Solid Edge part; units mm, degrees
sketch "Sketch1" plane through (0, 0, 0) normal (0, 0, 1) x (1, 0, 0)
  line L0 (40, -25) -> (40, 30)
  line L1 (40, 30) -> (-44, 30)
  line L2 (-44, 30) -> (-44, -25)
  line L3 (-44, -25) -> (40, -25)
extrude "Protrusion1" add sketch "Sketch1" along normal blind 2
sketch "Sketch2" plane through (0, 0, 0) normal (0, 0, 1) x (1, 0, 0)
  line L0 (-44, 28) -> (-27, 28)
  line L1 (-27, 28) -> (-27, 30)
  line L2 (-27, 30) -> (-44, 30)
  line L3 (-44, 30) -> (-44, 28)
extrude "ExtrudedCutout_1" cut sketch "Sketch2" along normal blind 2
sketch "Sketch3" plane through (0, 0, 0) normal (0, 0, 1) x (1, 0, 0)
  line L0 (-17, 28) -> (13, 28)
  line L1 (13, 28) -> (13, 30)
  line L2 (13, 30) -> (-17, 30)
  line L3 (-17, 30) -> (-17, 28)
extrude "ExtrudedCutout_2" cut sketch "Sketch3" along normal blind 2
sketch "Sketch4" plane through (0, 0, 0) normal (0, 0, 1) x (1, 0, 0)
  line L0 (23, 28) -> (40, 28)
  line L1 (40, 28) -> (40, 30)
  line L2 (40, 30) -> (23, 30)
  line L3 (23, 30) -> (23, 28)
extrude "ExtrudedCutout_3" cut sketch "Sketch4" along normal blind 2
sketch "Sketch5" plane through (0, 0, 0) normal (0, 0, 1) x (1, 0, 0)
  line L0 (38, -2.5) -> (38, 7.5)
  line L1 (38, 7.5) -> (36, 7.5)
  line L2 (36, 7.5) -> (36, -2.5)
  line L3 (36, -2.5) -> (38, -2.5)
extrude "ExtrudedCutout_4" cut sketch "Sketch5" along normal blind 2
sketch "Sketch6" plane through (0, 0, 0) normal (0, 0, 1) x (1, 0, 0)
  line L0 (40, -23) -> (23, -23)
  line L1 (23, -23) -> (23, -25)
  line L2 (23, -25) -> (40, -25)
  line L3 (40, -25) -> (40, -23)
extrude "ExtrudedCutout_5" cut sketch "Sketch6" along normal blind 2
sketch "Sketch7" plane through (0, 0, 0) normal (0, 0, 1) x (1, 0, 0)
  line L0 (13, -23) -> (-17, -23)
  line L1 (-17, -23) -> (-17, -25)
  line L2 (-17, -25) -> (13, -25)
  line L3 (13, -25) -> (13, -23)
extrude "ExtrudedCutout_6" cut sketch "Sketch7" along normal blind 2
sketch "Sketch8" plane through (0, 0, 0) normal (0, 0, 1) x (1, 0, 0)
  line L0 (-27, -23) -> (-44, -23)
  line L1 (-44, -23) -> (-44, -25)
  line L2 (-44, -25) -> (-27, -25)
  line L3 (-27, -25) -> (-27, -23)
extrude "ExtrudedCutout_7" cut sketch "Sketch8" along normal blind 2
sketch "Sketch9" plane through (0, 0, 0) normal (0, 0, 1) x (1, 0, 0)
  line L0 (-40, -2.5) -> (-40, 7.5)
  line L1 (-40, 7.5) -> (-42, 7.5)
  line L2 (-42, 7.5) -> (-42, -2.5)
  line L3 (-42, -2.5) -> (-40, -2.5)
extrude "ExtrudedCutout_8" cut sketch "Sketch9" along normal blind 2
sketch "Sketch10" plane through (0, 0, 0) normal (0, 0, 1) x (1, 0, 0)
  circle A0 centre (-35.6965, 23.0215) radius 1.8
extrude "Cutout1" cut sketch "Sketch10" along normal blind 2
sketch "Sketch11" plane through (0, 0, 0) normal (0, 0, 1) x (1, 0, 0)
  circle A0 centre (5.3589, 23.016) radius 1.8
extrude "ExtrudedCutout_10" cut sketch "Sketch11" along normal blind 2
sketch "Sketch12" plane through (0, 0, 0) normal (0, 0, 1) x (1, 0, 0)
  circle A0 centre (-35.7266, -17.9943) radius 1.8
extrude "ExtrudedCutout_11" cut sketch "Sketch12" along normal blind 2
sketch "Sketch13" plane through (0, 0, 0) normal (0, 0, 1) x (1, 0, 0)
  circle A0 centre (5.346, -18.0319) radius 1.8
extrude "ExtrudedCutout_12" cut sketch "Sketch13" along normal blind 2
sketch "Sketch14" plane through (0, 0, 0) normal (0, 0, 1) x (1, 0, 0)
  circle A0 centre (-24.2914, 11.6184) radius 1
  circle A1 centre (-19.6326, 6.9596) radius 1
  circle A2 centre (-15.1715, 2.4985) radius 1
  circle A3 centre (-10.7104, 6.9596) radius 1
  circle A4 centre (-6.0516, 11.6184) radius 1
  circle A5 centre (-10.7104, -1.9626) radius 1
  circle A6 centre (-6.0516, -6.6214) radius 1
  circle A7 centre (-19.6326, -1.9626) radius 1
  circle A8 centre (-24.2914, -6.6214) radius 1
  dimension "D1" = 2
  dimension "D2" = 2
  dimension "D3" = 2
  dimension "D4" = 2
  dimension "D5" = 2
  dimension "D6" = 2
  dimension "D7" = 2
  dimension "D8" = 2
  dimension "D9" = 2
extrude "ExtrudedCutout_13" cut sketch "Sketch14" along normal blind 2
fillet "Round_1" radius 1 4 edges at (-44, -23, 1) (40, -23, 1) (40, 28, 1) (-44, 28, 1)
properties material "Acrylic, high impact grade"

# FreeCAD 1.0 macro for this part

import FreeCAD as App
import Part
import Sketcher


def edges_at(feature, points):
    """Names of the edges that pass closest to the given points."""
    edges = feature.Shape.Edges
    near = lambda p: min(range(len(edges)), key=lambda i: edges[i].distToShape(Part.Vertex(*p))[0])
    return sorted({f"Edge{near(p) + 1}" for p in points})

doc = App.newDocument("Part")
body = doc.addObject("PartDesign::Body", "Body")

# Sketch on XY plane
sketch1 = doc.addObject("Sketcher::SketchObject", "Sketch")
body.addObject(sketch1)
sketch1.AttachmentSupport = (doc.XY_Plane, [""])
sketch1.MapMode = "FlatFace"
sketch1.addGeometry(Part.LineSegment(App.Vector(-44, -25, 0), App.Vector(40, -25, 0)), False)
sketch1.addGeometry(Part.LineSegment(App.Vector(40, -25, 0), App.Vector(40, 30, 0)), False)
sketch1.addGeometry(Part.LineSegment(App.Vector(40, 30, 0), App.Vector(-44, 30, 0)), False)
sketch1.addGeometry(Part.LineSegment(App.Vector(-44, 30, 0), App.Vector(-44, -25, 0)), False)
sketch1.addConstraint(Sketcher.Constraint("Coincident", 0, 2, 1, 1))
sketch1.addConstraint(Sketcher.Constraint("Coincident", 1, 2, 2, 1))
sketch1.addConstraint(Sketcher.Constraint("Coincident", 2, 2, 3, 1))
sketch1.addConstraint(Sketcher.Constraint("Coincident", 3, 2, 0, 1))
sketch1.addConstraint(Sketcher.Constraint("Horizontal", 0))
sketch1.addConstraint(Sketcher.Constraint("Vertical", 1))
sketch1.addConstraint(Sketcher.Constraint("Horizontal", 2))
sketch1.addConstraint(Sketcher.Constraint("Vertical", 3))
sketch1.addConstraint(Sketcher.Constraint("DistanceX", 0, 1, 0, 2, 84.0))
sketch1.addConstraint(Sketcher.Constraint("DistanceY", 1, 1, 1, 2, 55.0))
sketch1.addConstraint(Sketcher.Constraint("DistanceX", -1, 1, 0, 2, 40.0))
sketch1.addConstraint(Sketcher.Constraint("DistanceY", 0, 2, -1, 1, 25.0))
pad1 = doc.addObject("PartDesign::Pad", "Pad")
body.addObject(pad1)
pad1.Profile = sketch1
pad1.Length = 2

# Sketch on XY plane
sketch2 = doc.addObject("Sketcher::SketchObject", "Sketch001")
body.addObject(sketch2)
sketch2.AttachmentSupport = (doc.XY_Plane, [""])
sketch2.MapMode = "FlatFace"
sketch2.addGeometry(Part.LineSegment(App.Vector(-44, 30, 0), App.Vector(-44, 28, 0)), False)
sketch2.addGeometry(Part.LineSegment(App.Vector(-44, 28, 0), App.Vector(-27, 28, 0)), False)
sketch2.addGeometry(Part.LineSegment(App.Vector(-27, 28, 0), App.Vector(-27, 30, 0)), False)
sketch2.addGeometry(Part.LineSegment(App.Vector(-27, 30, 0), App.Vector(-44, 30, 0)), False)
sketch2.addConstraint(Sketcher.Constraint("Coincident", 0, 2, 1, 1))
sketch2.addConstraint(Sketcher.Constraint("Coincident", 1, 2, 2, 1))
sketch2.addConstraint(Sketcher.Constraint("Coincident", 2, 2, 3, 1))
sketch2.addConstraint(Sketcher.Constraint("Coincident", 3, 2, 0, 1))
sketch2.addConstraint(Sketcher.Constraint("Vertical", 0))
sketch2.addConstraint(Sketcher.Constraint("Horizontal", 1))
sketch2.addConstraint(Sketcher.Constraint("Vertical", 2))
sketch2.addConstraint(Sketcher.Constraint("Horizontal", 3))
sketch2.addConstraint(Sketcher.Constraint("DistanceX", 1, 1, 1, 2, 17.0))
sketch2.addConstraint(Sketcher.Constraint("DistanceY", 0, 2, 0, 1, 2.0))
sketch2.addConstraint(Sketcher.Constraint("DistanceX", 0, 2, -1, 1, 44.0))
sketch2.addConstraint(Sketcher.Constraint("DistanceY", -1, 1, 0, 2, 28.0))
pocket1 = doc.addObject("PartDesign::Pocket", "Pocket")
body.addObject(pocket1)
pocket1.Profile = sketch2
pocket1.Length = 2
pocket1.Reversed = True

# Sketch on XY plane
sketch3 = doc.addObject("Sketcher::SketchObject", "Sketch002")
body.addObject(sketch3)
sketch3.AttachmentSupport = (doc.XY_Plane, [""])
sketch3.MapMode = "FlatFace"
sketch3.addGeometry(Part.LineSegment(App.Vector(-17, 30, 0), App.Vector(-17, 28, 0)), False)
sketch3.addGeometry(Part.LineSegment(App.Vector(-17, 28, 0), App.Vector(13, 28, 0)), False)
sketch3.addGeometry(Part.LineSegment(App.Vector(13, 28, 0), App.Vector(13, 30, 0)), False)
sketch3.addGeometry(Part.LineSegment(App.Vector(13, 30, 0), App.Vector(-17, 30, 0)), False)
sketch3.addConstraint(Sketcher.Constraint("Coincident", 0, 2, 1, 1))
sketch3.addConstraint(Sketcher.Constraint("Coincident", 1, 2, 2, 1))
sketch3.addConstraint(Sketcher.Constraint("Coincident", 2, 2, 3, 1))
sketch3.addConstraint(Sketcher.Constraint("Coincident", 3, 2, 0, 1))
sketch3.addConstraint(Sketcher.Constraint("Vertical", 0))
sketch3.addConstraint(Sketcher.Constraint("Horizontal", 1))
sketch3.addConstraint(Sketcher.Constraint("Vertical", 2))
sketch3.addConstraint(Sketcher.Constraint("Horizontal", 3))
sketch3.addConstraint(Sketcher.Constraint("DistanceX", 1, 1, 1, 2, 30.0))
sketch3.addConstraint(Sketcher.Constraint("DistanceY", 0, 2, 0, 1, 2.0))
sketch3.addConstraint(Sketcher.Constraint("DistanceX", 0, 2, -1, 1, 17.0))
sketch3.addConstraint(Sketcher.Constraint("DistanceY", -1, 1, 0, 2, 28.0))
pocket2 = doc.addObject("PartDesign::Pocket", "Pocket001")
body.addObject(pocket2)
pocket2.Profile = sketch3
pocket2.Length = 2
pocket2.Reversed = True

# Sketch on XY plane
sketch4 = doc.addObject("Sketcher::SketchObject", "Sketch003")
body.addObject(sketch4)
sketch4.AttachmentSupport = (doc.XY_Plane, [""])
sketch4.MapMode = "FlatFace"
sketch4.addGeometry(Part.LineSegment(App.Vector(23, 30, 0), App.Vector(23, 28, 0)), False)
sketch4.addGeometry(Part.LineSegment(App.Vector(23, 28, 0), App.Vector(40, 28, 0)), False)
sketch4.addGeometry(Part.LineSegment(App.Vector(40, 28, 0), App.Vector(40, 30, 0)), False)
sketch4.addGeometry(Part.LineSegment(App.Vector(40, 30, 0), App.Vector(23, 30, 0)), False)
sketch4.addConstraint(Sketcher.Constraint("Coincident", 0, 2, 1, 1))
sketch4.addConstraint(Sketcher.Constraint("Coincident", 1, 2, 2, 1))
sketch4.addConstraint(Sketcher.Constraint("Coincident", 2, 2, 3, 1))
sketch4.addConstraint(Sketcher.Constraint("Coincident", 3, 2, 0, 1))
sketch4.addConstraint(Sketcher.Constraint("Vertical", 0))
sketch4.addConstraint(Sketcher.Constraint("Horizontal", 1))
sketch4.addConstraint(Sketcher.Constraint("Vertical", 2))
sketch4.addConstraint(Sketcher.Constraint("Horizontal", 3))
sketch4.addConstraint(Sketcher.Constraint("DistanceX", 1, 1, 1, 2, 17.0))
sketch4.addConstraint(Sketcher.Constraint("DistanceY", 0, 2, 0, 1, 2.0))
sketch4.addConstraint(Sketcher.Constraint("DistanceX", -1, 1, 0, 2, 23.0))
sketch4.addConstraint(Sketcher.Constraint("DistanceY", -1, 1, 0, 2, 28.0))
pocket3 = doc.addObject("PartDesign::Pocket", "Pocket002")
body.addObject(pocket3)
pocket3.Profile = sketch4
pocket3.Length = 2
pocket3.Reversed = True

# Sketch on XY plane
sketch5 = doc.addObject("Sketcher::SketchObject", "Sketch004")
body.addObject(sketch5)
sketch5.AttachmentSupport = (doc.XY_Plane, [""])
sketch5.MapMode = "FlatFace"
sketch5.addGeometry(Part.LineSegment(App.Vector(36, -2.5, 0), App.Vector(38, -2.5, 0)), False)
sketch5.addGeometry(Part.LineSegment(App.Vector(38, -2.5, 0), App.Vector(38, 7.5, 0)), False)
sketch5.addGeometry(Part.LineSegment(App.Vector(38, 7.5, 0), App.Vector(36, 7.5, 0)), False)
sketch5.addGeometry(Part.LineSegment(App.Vector(36, 7.5, 0), App.Vector(36, -2.5, 0)), False)
sketch5.addConstraint(Sketcher.Constraint("Coincident", 0, 2, 1, 1))
sketch5.addConstraint(Sketcher.Constraint("Coincident", 1, 2, 2, 1))
sketch5.addConstraint(Sketcher.Constraint("Coincident", 2, 2, 3, 1))
sketch5.addConstraint(Sketcher.Constraint("Coincident", 3, 2, 0, 1))
sketch5.addConstraint(Sketcher.Constraint("Horizontal", 0))
sketch5.addConstraint(Sketcher.Constraint("Vertical", 1))
sketch5.addConstraint(Sketcher.Constraint("Horizontal", 2))
sketch5.addConstraint(Sketcher.Constraint("Vertical", 3))
sketch5.addConstraint(Sketcher.Constraint("DistanceX", 0, 1, 0, 2, 2.0))
sketch5.addConstraint(Sketcher.Constraint("DistanceY", 1, 1, 1, 2, 10.0))
sketch5.addConstraint(Sketcher.Constraint("DistanceX", -1, 1, 0, 2, 38.0))
sketch5.addConstraint(Sketcher.Constraint("DistanceY", 0, 2, -1, 1, 2.5))
pocket4 = doc.addObject("PartDesign::Pocket", "Pocket003")
body.addObject(pocket4)
pocket4.Profile = sketch5
pocket4.Length = 2
pocket4.Reversed = True

# Sketch on XY plane
sketch6 = doc.addObject("Sketcher::SketchObject", "Sketch005")
body.addObject(sketch6)
sketch6.AttachmentSupport = (doc.XY_Plane, [""])
sketch6.MapMode = "FlatFace"
sketch6.addGeometry(Part.LineSegment(App.Vector(40, -25, 0), App.Vector(40, -23, 0)), False)
sketch6.addGeometry(Part.LineSegment(App.Vector(40, -23, 0), App.Vector(23, -23, 0)), False)
sketch6.addGeometry(Part.LineSegment(App.Vector(23, -23, 0), App.Vector(23, -25, 0)), False)
sketch6.addGeometry(Part.LineSegment(App.Vector(23, -25, 0), App.Vector(40, -25, 0)), False)
sketch6.addConstraint(Sketcher.Constraint("Coincident", 0, 2, 1, 1))
sketch6.addConstraint(Sketcher.Constraint("Coincident", 1, 2, 2, 1))
sketch6.addConstraint(Sketcher.Constraint("Coincident", 2, 2, 3, 1))
sketch6.addConstraint(Sketcher.Constraint("Coincident", 3, 2, 0, 1))
sketch6.addConstraint(Sketcher.Constraint("Vertical", 0))
sketch6.addConstraint(Sketcher.Constraint("Horizontal", 1))
sketch6.addConstraint(Sketcher.Constraint("Vertical", 2))
sketch6.addConstraint(Sketcher.Constraint("Horizontal", 3))
sketch6.addConstraint(Sketcher.Constraint("DistanceX", 1, 2, 1, 1, 17.0))
sketch6.addConstraint(Sketcher.Constraint("DistanceY", 0, 1, 0, 2, 2.0))
sketch6.addConstraint(Sketcher.Constraint("DistanceX", -1, 1, 0, 2, 40.0))
sketch6.addConstraint(Sketcher.Constraint("DistanceY", 0, 2, -1, 1, 23.0))
pocket5 = doc.addObject("PartDesign::Pocket", "Pocket004")
body.addObject(pocket5)
pocket5.Profile = sketch6
pocket5.Length = 2
pocket5.Reversed = True

# Sketch on XY plane
sketch7 = doc.addObject("Sketcher::SketchObject", "Sketch006")
body.addObject(sketch7)
sketch7.AttachmentSupport = (doc.XY_Plane, [""])
sketch7.MapMode = "FlatFace"
sketch7.addGeometry(Part.LineSegment(App.Vector(13, -25, 0), App.Vector(13, -23, 0)), False)
sketch7.addGeometry(Part.LineSegment(App.Vector(13, -23, 0), App.Vector(-17, -23, 0)), False)
sketch7.addGeometry(Part.LineSegment(App.Vector(-17, -23, 0), App.Vector(-17, -25, 0)), False)
sketch7.addGeometry(Part.LineSegment(App.Vector(-17, -25, 0), App.Vector(13, -25, 0)), False)
sketch7.addConstraint(Sketcher.Constraint("Coincident", 0, 2, 1, 1))
sketch7.addConstraint(Sketcher.Constraint("Coincident", 1, 2, 2, 1))
sketch7.addConstraint(Sketcher.Constraint("Coincident", 2, 2, 3, 1))
sketch7.addConstraint(Sketcher.Constraint("Coincident", 3, 2, 0, 1))
sketch7.addConstraint(Sketcher.Constraint("Vertical", 0))
sketch7.addConstraint(Sketcher.Constraint("Horizontal", 1))
sketch7.addConstraint(Sketcher.Constraint("Vertical", 2))
sketch7.addConstraint(Sketcher.Constraint("Horizontal", 3))
sketch7.addConstraint(Sketcher.Constraint("DistanceX", 1, 2, 1, 1, 30.0))
sketch7.addConstraint(Sketcher.Constraint("DistanceY", 0, 1, 0, 2, 2.0))
sketch7.addConstraint(Sketcher.Constraint("DistanceX", -1, 1, 0, 2, 13.0))
sketch7.addConstraint(Sketcher.Constraint("DistanceY", 0, 2, -1, 1, 23.0))
pocket6 = doc.addObject("PartDesign::Pocket", "Pocket005")
body.addObject(pocket6)
pocket6.Profile = sketch7
pocket6.Length = 2
pocket6.Reversed = True

# Sketch on XY plane
sketch8 = doc.addObject("Sketcher::SketchObject", "Sketch007")
body.addObject(sketch8)
sketch8.AttachmentSupport = (doc.XY_Plane, [""])
sketch8.MapMode = "FlatFace"
sketch8.addGeometry(Part.LineSegment(App.Vector(-27, -25, 0), App.Vector(-27, -23, 0)), False)
sketch8.addGeometry(Part.LineSegment(App.Vector(-27, -23, 0), App.Vector(-44, -23, 0)), False)
sketch8.addGeometry(Part.LineSegment(App.Vector(-44, -23, 0), App.Vector(-44, -25, 0)), False)
sketch8.addGeometry(Part.LineSegment(App.Vector(-44, -25, 0), App.Vector(-27, -25, 0)), False)
sketch8.addConstraint(Sketcher.Constraint("Coincident", 0, 2, 1, 1))
sketch8.addConstraint(Sketcher.Constraint("Coincident", 1, 2, 2, 1))
sketch8.addConstraint(Sketcher.Constraint("Coincident", 2, 2, 3, 1))
sketch8.addConstraint(Sketcher.Constraint("Coincident", 3, 2, 0, 1))
sketch8.addConstraint(Sketcher.Constraint("Vertical", 0))
sketch8.addConstraint(Sketcher.Constraint("Horizontal", 1))
sketch8.addConstraint(Sketcher.Constraint("Vertical", 2))
sketch8.addConstraint(Sketcher.Constraint("Horizontal", 3))
sketch8.addConstraint(Sketcher.Constraint("DistanceX", 1, 2, 1, 1, 17.0))
sketch8.addConstraint(Sketcher.Constraint("DistanceY", 0, 1, 0, 2, 2.0))
sketch8.addConstraint(Sketcher.Constraint("DistanceX", 0, 2, -1, 1, 27.0))
sketch8.addConstraint(Sketcher.Constraint("DistanceY", 0, 2, -1, 1, 23.0))
pocket7 = doc.addObject("PartDesign::Pocket", "Pocket006")
body.addObject(pocket7)
pocket7.Profile = sketch8
pocket7.Length = 2
pocket7.Reversed = True

# Sketch on XY plane
sketch9 = doc.addObject("Sketcher::SketchObject", "Sketch008")
body.addObject(sketch9)
sketch9.AttachmentSupport = (doc.XY_Plane, [""])
sketch9.MapMode = "FlatFace"
sketch9.addGeometry(Part.LineSegment(App.Vector(-42, -2.5, 0), App.Vector(-40, -2.5, 0)), False)
sketch9.addGeometry(Part.LineSegment(App.Vector(-40, -2.5, 0), App.Vector(-40, 7.5, 0)), False)
sketch9.addGeometry(Part.LineSegment(App.Vector(-40, 7.5, 0), App.Vector(-42, 7.5, 0)), False)
sketch9.addGeometry(Part.LineSegment(App.Vector(-42, 7.5, 0), App.Vector(-42, -2.5, 0)), False)
sketch9.addConstraint(Sketcher.Constraint("Coincident", 0, 2, 1, 1))
sketch9.addConstraint(Sketcher.Constraint("Coincident", 1, 2, 2, 1))
sketch9.addConstraint(Sketcher.Constraint("Coincident", 2, 2, 3, 1))
sketch9.addConstraint(Sketcher.Constraint("Coincident", 3, 2, 0, 1))
sketch9.addConstraint(Sketcher.Constraint("Horizontal", 0))
sketch9.addConstraint(Sketcher.Constraint("Vertical", 1))
sketch9.addConstraint(Sketcher.Constraint("Horizontal", 2))
sketch9.addConstraint(Sketcher.Constraint("Vertical", 3))
sketch9.addConstraint(Sketcher.Constraint("DistanceX", 0, 1, 0, 2, 2.0))
sketch9.addConstraint(Sketcher.Constraint("DistanceY", 1, 1, 1, 2, 10.0))
sketch9.addConstraint(Sketcher.Constraint("DistanceX", 0, 2, -1, 1, 40.0))
sketch9.addConstraint(Sketcher.Constraint("DistanceY", 0, 2, -1, 1, 2.5))
pocket8 = doc.addObject("PartDesign::Pocket", "Pocket007")
body.addObject(pocket8)
pocket8.Profile = sketch9
pocket8.Length = 2
pocket8.Reversed = True

# Sketch on XY plane
sketch10 = doc.addObject("Sketcher::SketchObject", "Sketch009")
body.addObject(sketch10)
sketch10.AttachmentSupport = (doc.XY_Plane, [""])
sketch10.MapMode = "FlatFace"
sketch10.addGeometry(Part.Circle(App.Vector(-35.7, 23, 0), App.Vector(0, 0, 1), 1.8), False)
sketch10.addConstraint(Sketcher.Constraint("Diameter", 0, 3.6))
sketch10.addConstraint(Sketcher.Constraint("DistanceX", 0, 3, -1, 1, 35.6965))
sketch10.addConstraint(Sketcher.Constraint("DistanceY", -1, 1, 0, 3, 23.0215))
pocket9 = doc.addObject("PartDesign::Pocket", "Pocket008")
body.addObject(pocket9)
pocket9.Profile = sketch10
pocket9.Length = 2
pocket9.Reversed = True

# Sketch on XY plane
sketch11 = doc.addObject("Sketcher::SketchObject", "Sketch010")
body.addObject(sketch11)
sketch11.AttachmentSupport = (doc.XY_Plane, [""])
sketch11.MapMode = "FlatFace"
sketch11.addGeometry(Part.Circle(App.Vector(5.4, 23, 0), App.Vector(0, 0, 1), 1.8), False)
sketch11.addConstraint(Sketcher.Constraint("Diameter", 0, 3.6))
sketch11.addConstraint(Sketcher.Constraint("DistanceX", -1, 1, 0, 3, 5.359))
sketch11.addConstraint(Sketcher.Constraint("DistanceY", -1, 1, 0, 3, 23.016))
pocket10 = doc.addObject("PartDesign::Pocket", "Pocket009")
body.addObject(pocket10)
pocket10.Profile = sketch11
pocket10.Length = 2
pocket10.Reversed = True

# Sketch on XY plane
sketch12 = doc.addObject("Sketcher::SketchObject", "Sketch011")
body.addObject(sketch12)
sketch12.AttachmentSupport = (doc.XY_Plane, [""])
sketch12.MapMode = "FlatFace"
sketch12.addGeometry(Part.Circle(App.Vector(-35.7, -18, 0), App.Vector(0, 0, 1), 1.8), False)
sketch12.addConstraint(Sketcher.Constraint("Diameter", 0, 3.6))
sketch12.addConstraint(Sketcher.Constraint("DistanceX", 0, 3, -1, 1, 35.7266))
sketch12.addConstraint(Sketcher.Constraint("DistanceY", 0, 3, -1, 1, 17.9943))
pocket11 = doc.addObject("PartDesign::Pocket", "Pocket010")
body.addObject(pocket11)
pocket11.Profile = sketch12
pocket11.Length = 2
pocket11.Reversed = True

# Sketch on XY plane
sketch13 = doc.addObject("Sketcher::SketchObject", "Sketch012")
body.addObject(sketch13)
sketch13.AttachmentSupport = (doc.XY_Plane, [""])
sketch13.MapMode = "FlatFace"
sketch13.addGeometry(Part.Circle(App.Vector(5.3, -18, 0), App.Vector(0, 0, 1), 1.8), False)
sketch13.addConstraint(Sketcher.Constraint("Diameter", 0, 3.6))
sketch13.addConstraint(Sketcher.Constraint("DistanceX", -1, 1, 0, 3, 5.346))
sketch13.addConstraint(Sketcher.Constraint("DistanceY", 0, 3, -1, 1, 18.032))
pocket12 = doc.addObject("PartDesign::Pocket", "Pocket011")
body.addObject(pocket12)
pocket12.Profile = sketch13
pocket12.Length = 2
pocket12.Reversed = True

# Sketch on XY plane
sketch14 = doc.addObject("Sketcher::SketchObject", "Sketch013")
body.addObject(sketch14)
sketch14.AttachmentSupport = (doc.XY_Plane, [""])
sketch14.MapMode = "FlatFace"
sketch14.addGeometry(Part.Circle(App.Vector(-24.3, 11.6, 0), App.Vector(0, 0, 1), 1), False)
sketch14.addGeometry(Part.Circle(App.Vector(-19.6, 7, 0), App.Vector(0, 0, 1), 1), False)
sketch14.addGeometry(Part.Circle(App.Vector(-15.2, 2.5, 0), App.Vector(0, 0, 1), 1), False)
sketch14.addGeometry(Part.Circle(App.Vector(-10.7, 7, 0), App.Vector(0, 0, 1), 1), False)
sketch14.addGeometry(Part.Circle(App.Vector(-6.1, 11.6, 0), App.Vector(0, 0, 1), 1), False)
sketch14.addGeometry(Part.Circle(App.Vector(-10.7, -2, 0), App.Vector(0, 0, 1), 1), False)
sketch14.addGeometry(Part.Circle(App.Vector(-6.1, -6.6, 0), App.Vector(0, 0, 1), 1), False)
sketch14.addGeometry(Part.Circle(App.Vector(-19.6, -2, 0), App.Vector(0, 0, 1), 1), False)
sketch14.addGeometry(Part.Circle(App.Vector(-24.3, -6.6, 0), App.Vector(0, 0, 1), 1), False)
sketch14.addConstraint(Sketcher.Constraint("Equal", 0, 1))
sketch14.addConstraint(Sketcher.Constraint("Equal", 1, 2))
sketch14.addConstraint(Sketcher.Constraint("Equal", 2, 3))
sketch14.addConstraint(Sketcher.Constraint("Equal", 3, 4))
sketch14.addConstraint(Sketcher.Constraint("Equal", 4, 5))
sketch14.addConstraint(Sketcher.Constraint("Equal", 5, 6))
sketch14.addConstraint(Sketcher.Constraint("Equal", 6, 7))
sketch14.addConstraint(Sketcher.Constraint("Equal", 7, 8))
sketch14.addConstraint(Sketcher.Constraint("Horizontal", 1, 3, 3, 3))
sketch14.addConstraint(Sketcher.Constraint("Horizontal", 0, 3, 4, 3))
sketch14.addConstraint(Sketcher.Constraint("Horizontal", 5, 3, 7, 3))
sketch14.addConstraint(Sketcher.Constraint("Horizontal", 6, 3, 8, 3))
sketch14.addConstraint(Sketcher.Constraint("Vertical", 3, 3, 5, 3))
sketch14.addConstraint(Sketcher.Constraint("Vertical", 4, 3, 6, 3))
sketch14.addConstraint(Sketcher.Constraint("Vertical", 1, 3, 7, 3))
sketch14.addConstraint(Sketcher.Constraint("Vertical", 0, 3, 8, 3))
sketch14.addConstraint(Sketcher.Constraint("Diameter", 0, 2.0))
sketch14.addConstraint(Sketcher.Constraint("DistanceX", 0, 3, 2, 3, 9.12))
sketch14.addConstraint(Sketcher.Constraint("DistanceY", 2, 3, 0, 3, 9.12))
sketch14.addConstraint(Sketcher.Constraint("DistanceX", 2, 3, 4, 3, 9.12))
sketch14.addConstraint(Sketcher.Constraint("DistanceY", 6, 3, 2, 3, 9.12))
sketch14.addConstraint(Sketcher.Constraint("DistanceX", 1, 3, 2, 3, 4.461))
sketch14.addConstraint(Sketcher.Constraint("DistanceY", 2, 3, 1, 3, 4.461))
sketch14.addConstraint(Sketcher.Constraint("DistanceX", 2, 3, 3, 3, 4.461))
sketch14.addConstraint(Sketcher.Constraint("DistanceY", 5, 3, 2, 3, 4.461))
sketch14.addConstraint(Sketcher.Constraint("DistanceX", 0, 3, -1, 1, 24.2914))
sketch14.addConstraint(Sketcher.Constraint("DistanceY", -1, 1, 0, 3, 11.6184))
pocket13 = doc.addObject("PartDesign::Pocket", "Pocket012")
body.addObject(pocket13)
pocket13.Profile = sketch14
pocket13.Length = 2
pocket13.Reversed = True
doc.recompute()

fillet = doc.addObject("PartDesign::Fillet", "Fillet")
body.addObject(fillet)
fillet.Base = (pocket13, edges_at(pocket13, [
    (-44, -23, 1),
    (40, -23, 1),
    (40, 28, 1),
    (-44, 28, 1),
]))
fillet.Radius = 1

doc.recompute()
